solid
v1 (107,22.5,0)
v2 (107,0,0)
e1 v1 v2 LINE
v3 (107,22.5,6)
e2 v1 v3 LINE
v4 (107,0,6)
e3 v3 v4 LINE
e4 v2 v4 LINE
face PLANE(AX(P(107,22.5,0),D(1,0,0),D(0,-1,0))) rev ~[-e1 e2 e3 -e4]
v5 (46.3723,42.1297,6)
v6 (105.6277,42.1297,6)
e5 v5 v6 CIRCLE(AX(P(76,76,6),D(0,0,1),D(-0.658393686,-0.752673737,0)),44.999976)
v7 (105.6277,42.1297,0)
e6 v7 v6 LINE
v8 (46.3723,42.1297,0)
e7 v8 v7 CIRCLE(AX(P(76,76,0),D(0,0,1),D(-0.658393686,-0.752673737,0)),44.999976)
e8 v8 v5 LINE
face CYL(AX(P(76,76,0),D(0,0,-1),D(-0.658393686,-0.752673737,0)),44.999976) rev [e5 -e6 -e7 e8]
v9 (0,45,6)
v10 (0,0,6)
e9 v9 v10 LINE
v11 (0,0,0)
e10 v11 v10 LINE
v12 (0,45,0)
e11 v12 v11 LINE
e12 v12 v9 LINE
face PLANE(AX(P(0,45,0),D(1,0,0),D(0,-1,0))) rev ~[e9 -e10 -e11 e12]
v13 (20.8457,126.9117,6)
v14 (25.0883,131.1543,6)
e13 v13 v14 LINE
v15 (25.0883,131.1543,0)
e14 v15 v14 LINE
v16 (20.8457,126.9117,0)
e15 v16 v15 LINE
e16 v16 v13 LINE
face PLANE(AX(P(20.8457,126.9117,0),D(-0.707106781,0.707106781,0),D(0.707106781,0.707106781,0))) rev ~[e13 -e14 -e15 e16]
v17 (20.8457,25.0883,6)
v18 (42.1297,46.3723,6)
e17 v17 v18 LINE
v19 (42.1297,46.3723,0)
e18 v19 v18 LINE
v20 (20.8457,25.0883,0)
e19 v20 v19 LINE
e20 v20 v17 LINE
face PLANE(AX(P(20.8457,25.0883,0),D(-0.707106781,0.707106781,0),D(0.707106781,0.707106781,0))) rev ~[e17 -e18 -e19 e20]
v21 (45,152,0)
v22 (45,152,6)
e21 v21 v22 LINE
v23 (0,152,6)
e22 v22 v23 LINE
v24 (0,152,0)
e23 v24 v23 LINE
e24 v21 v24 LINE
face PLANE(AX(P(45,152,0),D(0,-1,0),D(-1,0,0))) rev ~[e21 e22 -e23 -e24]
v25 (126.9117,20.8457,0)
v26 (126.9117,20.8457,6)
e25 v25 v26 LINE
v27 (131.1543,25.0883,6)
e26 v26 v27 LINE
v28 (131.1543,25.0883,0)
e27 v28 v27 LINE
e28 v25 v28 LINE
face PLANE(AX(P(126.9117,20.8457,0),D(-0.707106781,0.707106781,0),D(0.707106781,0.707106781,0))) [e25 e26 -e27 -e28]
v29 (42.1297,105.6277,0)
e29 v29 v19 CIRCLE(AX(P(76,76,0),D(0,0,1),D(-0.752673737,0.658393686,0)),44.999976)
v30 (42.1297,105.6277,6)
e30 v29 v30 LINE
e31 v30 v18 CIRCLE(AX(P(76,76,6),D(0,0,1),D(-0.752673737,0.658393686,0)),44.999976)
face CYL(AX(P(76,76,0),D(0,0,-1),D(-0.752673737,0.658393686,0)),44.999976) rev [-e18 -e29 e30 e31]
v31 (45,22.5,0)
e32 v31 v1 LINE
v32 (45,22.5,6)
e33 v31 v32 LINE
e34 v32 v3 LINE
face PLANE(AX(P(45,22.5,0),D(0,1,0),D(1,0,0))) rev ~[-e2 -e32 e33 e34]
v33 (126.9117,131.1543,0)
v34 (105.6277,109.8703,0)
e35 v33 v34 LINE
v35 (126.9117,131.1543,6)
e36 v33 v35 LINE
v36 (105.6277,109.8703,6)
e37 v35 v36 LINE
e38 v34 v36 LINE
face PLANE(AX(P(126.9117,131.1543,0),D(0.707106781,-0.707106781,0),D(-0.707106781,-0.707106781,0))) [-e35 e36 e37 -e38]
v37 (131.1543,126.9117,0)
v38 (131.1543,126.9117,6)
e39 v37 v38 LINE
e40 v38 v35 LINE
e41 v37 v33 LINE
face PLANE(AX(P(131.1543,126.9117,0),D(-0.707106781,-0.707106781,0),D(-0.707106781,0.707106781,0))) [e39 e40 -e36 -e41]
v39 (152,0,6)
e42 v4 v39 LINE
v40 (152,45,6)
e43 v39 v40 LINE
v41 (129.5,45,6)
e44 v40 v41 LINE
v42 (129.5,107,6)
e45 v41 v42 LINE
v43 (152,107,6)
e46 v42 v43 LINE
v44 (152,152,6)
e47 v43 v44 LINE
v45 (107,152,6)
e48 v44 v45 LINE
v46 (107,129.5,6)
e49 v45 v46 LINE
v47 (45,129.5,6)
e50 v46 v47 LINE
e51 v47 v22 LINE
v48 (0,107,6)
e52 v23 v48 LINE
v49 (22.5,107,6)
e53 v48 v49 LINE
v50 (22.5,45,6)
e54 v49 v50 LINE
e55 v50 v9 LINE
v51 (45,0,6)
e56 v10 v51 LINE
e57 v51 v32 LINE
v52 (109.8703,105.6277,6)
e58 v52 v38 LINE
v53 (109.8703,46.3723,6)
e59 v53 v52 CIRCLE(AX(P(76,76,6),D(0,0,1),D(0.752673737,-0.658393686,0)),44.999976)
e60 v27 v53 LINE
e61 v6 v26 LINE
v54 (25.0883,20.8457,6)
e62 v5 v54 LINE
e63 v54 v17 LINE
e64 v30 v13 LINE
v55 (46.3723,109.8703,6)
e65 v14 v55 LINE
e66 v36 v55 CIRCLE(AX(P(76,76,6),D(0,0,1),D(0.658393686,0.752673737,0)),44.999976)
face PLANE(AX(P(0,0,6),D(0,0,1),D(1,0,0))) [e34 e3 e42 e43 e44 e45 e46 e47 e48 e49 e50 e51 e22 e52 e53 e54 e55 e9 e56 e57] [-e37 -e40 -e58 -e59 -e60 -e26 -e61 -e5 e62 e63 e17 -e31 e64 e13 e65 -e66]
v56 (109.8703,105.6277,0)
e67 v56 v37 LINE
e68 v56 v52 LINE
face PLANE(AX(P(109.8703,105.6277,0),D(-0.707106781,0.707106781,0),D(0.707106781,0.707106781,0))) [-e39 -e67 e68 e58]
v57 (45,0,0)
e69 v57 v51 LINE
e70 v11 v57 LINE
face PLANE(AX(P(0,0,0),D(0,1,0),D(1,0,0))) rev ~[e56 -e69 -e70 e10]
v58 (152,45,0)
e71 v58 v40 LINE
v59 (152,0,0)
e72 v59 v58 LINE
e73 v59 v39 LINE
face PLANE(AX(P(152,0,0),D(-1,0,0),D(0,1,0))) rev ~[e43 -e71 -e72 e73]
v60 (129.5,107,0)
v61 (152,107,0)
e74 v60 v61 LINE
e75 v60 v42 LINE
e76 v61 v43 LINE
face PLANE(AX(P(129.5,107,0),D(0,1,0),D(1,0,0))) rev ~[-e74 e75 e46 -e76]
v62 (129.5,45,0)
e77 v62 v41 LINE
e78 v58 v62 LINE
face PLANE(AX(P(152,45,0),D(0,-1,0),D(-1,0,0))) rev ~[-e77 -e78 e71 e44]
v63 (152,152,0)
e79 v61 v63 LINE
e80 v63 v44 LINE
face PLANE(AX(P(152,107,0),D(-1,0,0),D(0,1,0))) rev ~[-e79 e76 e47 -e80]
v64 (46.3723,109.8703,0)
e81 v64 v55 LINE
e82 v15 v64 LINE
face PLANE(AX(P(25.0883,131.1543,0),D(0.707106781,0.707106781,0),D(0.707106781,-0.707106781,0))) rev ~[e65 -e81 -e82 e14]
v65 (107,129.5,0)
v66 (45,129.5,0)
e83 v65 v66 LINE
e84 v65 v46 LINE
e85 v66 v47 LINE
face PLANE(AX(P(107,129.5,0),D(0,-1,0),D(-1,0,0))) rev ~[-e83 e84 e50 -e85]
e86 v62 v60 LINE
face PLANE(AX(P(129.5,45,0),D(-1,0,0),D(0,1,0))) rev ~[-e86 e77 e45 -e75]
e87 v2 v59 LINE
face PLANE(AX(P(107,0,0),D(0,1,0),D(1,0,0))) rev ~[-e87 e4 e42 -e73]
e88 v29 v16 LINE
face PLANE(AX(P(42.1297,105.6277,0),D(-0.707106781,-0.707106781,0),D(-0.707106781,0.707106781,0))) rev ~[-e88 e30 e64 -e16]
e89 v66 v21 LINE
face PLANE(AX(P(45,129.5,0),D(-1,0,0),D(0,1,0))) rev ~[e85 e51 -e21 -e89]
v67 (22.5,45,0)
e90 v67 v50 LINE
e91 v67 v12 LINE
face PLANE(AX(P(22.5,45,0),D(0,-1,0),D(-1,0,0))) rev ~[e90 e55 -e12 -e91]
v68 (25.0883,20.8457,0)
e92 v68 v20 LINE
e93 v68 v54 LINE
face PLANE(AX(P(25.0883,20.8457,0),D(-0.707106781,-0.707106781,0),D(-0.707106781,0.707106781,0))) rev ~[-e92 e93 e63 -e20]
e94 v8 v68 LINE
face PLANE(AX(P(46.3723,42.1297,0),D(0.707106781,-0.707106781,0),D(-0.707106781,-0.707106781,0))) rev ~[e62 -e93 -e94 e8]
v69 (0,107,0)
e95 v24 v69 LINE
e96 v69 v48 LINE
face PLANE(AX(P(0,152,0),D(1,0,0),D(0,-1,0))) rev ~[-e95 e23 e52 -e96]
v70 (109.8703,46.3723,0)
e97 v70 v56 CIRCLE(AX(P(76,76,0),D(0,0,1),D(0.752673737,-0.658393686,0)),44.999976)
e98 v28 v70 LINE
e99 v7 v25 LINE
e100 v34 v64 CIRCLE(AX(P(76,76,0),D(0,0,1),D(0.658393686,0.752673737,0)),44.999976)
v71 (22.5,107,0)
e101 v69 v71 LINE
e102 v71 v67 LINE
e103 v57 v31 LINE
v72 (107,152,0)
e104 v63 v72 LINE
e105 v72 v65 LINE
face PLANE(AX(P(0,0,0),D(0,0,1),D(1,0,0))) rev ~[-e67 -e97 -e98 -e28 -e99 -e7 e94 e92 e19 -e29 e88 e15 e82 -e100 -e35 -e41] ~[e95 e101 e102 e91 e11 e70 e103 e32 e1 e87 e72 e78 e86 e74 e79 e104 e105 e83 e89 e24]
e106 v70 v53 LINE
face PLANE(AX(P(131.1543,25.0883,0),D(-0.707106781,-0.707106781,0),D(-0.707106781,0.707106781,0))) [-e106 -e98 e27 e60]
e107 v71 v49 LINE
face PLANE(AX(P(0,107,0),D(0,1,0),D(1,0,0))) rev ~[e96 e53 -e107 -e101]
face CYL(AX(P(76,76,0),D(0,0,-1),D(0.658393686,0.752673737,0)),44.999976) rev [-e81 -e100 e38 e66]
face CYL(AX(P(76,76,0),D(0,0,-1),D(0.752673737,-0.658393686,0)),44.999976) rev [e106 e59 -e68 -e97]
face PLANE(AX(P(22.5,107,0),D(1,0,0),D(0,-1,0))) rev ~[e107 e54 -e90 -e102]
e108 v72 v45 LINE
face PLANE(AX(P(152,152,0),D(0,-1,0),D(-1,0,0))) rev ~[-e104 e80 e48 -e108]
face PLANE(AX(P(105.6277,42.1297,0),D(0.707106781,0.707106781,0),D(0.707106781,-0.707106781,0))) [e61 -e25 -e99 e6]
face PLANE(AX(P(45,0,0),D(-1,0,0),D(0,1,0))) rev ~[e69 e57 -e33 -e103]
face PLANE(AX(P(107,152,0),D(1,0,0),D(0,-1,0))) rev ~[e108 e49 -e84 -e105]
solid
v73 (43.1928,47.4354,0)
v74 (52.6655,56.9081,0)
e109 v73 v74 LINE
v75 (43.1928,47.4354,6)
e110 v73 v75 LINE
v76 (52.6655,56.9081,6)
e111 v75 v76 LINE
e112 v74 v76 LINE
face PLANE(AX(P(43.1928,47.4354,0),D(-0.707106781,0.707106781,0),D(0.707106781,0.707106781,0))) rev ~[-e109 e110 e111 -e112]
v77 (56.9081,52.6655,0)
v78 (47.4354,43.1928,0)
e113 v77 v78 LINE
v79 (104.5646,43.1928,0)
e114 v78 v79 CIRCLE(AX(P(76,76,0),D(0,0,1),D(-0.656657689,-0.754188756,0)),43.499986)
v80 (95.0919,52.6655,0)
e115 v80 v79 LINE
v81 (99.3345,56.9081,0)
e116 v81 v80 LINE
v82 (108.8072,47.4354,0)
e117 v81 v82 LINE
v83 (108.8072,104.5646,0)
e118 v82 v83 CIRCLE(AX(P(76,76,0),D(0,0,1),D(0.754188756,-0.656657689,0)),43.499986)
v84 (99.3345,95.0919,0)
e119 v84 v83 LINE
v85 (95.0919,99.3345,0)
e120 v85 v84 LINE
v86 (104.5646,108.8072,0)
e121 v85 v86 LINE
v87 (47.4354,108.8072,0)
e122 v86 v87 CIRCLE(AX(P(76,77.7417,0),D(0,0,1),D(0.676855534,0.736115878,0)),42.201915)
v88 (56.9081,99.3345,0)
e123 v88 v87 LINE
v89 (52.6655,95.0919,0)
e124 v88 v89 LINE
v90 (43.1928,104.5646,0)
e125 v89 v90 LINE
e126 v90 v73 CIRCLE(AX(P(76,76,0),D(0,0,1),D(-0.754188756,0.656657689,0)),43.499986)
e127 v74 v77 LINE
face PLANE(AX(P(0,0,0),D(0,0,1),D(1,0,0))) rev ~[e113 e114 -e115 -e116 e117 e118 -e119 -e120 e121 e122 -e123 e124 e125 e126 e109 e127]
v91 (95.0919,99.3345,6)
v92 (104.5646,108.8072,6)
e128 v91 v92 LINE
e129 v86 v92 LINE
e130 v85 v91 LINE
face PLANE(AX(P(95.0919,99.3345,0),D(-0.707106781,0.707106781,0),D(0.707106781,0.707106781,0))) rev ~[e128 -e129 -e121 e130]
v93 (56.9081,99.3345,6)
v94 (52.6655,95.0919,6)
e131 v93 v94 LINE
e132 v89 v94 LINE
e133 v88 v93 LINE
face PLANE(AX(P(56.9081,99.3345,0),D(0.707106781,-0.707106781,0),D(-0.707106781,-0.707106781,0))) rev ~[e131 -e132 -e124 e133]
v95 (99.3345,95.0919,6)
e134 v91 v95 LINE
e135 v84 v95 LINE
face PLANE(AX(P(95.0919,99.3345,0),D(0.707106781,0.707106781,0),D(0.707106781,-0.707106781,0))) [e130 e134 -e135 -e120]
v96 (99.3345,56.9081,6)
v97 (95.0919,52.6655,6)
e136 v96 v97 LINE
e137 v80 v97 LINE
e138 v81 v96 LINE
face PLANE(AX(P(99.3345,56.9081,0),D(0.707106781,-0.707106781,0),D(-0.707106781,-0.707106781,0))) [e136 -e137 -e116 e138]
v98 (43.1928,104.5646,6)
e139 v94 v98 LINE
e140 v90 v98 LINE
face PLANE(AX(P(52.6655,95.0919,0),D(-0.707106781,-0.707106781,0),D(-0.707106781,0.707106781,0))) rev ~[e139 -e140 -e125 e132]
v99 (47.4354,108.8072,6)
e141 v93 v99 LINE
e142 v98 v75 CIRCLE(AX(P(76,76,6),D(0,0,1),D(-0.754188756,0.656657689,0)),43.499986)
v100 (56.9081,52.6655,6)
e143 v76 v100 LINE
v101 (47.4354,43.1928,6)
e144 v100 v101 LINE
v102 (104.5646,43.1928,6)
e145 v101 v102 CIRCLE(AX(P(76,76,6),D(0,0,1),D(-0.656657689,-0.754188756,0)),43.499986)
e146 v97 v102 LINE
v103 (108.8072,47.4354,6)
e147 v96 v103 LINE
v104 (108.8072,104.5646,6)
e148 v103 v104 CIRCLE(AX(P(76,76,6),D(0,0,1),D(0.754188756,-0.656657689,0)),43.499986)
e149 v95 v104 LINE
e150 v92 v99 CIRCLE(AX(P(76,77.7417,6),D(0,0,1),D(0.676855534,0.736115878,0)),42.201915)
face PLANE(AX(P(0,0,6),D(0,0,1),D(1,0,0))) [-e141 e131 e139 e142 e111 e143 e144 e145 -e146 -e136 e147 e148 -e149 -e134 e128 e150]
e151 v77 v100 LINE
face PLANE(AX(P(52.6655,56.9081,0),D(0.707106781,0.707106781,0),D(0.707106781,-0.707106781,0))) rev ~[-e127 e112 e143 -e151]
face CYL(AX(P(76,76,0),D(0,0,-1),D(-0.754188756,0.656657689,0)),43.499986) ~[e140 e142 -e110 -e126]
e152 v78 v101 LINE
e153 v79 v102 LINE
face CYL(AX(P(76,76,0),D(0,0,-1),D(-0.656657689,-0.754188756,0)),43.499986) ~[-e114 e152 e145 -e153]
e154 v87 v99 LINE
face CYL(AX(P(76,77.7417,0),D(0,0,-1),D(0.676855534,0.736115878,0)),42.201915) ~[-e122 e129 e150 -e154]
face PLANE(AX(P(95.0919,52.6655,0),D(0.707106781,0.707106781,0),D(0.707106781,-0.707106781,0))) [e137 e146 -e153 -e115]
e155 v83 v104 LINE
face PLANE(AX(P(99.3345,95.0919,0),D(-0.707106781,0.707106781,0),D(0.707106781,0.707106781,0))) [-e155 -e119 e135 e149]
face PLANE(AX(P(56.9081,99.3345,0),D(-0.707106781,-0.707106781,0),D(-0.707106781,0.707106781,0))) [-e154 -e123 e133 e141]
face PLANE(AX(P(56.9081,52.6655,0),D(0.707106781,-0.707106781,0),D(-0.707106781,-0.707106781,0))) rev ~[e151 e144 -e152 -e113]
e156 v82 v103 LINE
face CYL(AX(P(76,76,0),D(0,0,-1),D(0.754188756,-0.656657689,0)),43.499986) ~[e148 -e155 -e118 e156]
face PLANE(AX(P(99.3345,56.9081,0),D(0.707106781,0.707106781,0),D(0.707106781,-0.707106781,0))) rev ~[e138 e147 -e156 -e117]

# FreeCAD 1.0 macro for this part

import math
import FreeCAD as App
import Part
import Sketcher
Q = App.Units.Quantity


def add_polygon(sketch, points):
    """Adds a closed chain of lines whose ends are joined by coincident constraints."""
    first, n = sketch.GeometryCount, len(points)
    for a, b in zip(points, points[1:] + points[:1]):
        sketch.addGeometry(Part.LineSegment(App.Vector(*a, 0), App.Vector(*b, 0)), False)
    for i in range(n):
        sketch.addConstraint(Sketcher.Constraint("Coincident", first + i, 2, first + (i + 1) % n, 1))

doc = App.newDocument("Part")
body = doc.addObject("PartDesign::Body", "Body")
body.AllowCompound = True

# Sketch on XY plane
sketch1 = doc.addObject("Sketcher::SketchObject", "Sketch")
body.addObject(sketch1)
sketch1.AttachmentSupport = (doc.XY_Plane, [""])
sketch1.MapMode = "FlatFace"
add_polygon(sketch1, [(0, 45), (0, 0), (45, 0), (45, 22.5), (107, 22.5), (107, 0), (152, 0), (152, 45), (129.5, 45), (129.5, 107), (152, 107), (152, 152), (107, 152), (107, 129.5), (45, 129.5), (45, 152), (0, 152), (0, 107), (22.5, 107), (22.5, 45)])  # lines 0-19
sketch1.addGeometry(Part.LineSegment(App.Vector(131.1543, 25.0883, 0), App.Vector(126.9117, 20.8457, 0)), False)  # 20
sketch1.addGeometry(Part.LineSegment(App.Vector(126.9117, 20.8457, 0), App.Vector(105.6277, 42.1297, 0)), False)  # 21
sketch1.addGeometry(Part.ArcOfCircle(Part.Circle(App.Vector(76, 76, 0), App.Vector(0, 0, 1), 44.999976), math.radians(-131.177481), math.radians(-48.822519)), False)  # 22
sketch1.addGeometry(Part.LineSegment(App.Vector(46.3723, 42.1297, 0), App.Vector(25.0883, 20.8457, 0)), False)  # 23
sketch1.addGeometry(Part.LineSegment(App.Vector(25.0883, 20.8457, 0), App.Vector(20.8457, 25.0883, 0)), False)  # 24
sketch1.addGeometry(Part.LineSegment(App.Vector(20.8457, 25.0883, 0), App.Vector(42.1297, 46.3723, 0)), False)  # 25
sketch1.addGeometry(Part.ArcOfCircle(Part.Circle(App.Vector(76, 76, 0), App.Vector(0, 0, 1), 44.999976), math.radians(138.822519), math.radians(221.177481)), False)  # 26
sketch1.addGeometry(Part.LineSegment(App.Vector(42.1297, 105.6277, 0), App.Vector(20.8457, 126.9117, 0)), False)  # 27
sketch1.addGeometry(Part.LineSegment(App.Vector(20.8457, 126.9117, 0), App.Vector(25.0883, 131.1543, 0)), False)  # 28
sketch1.addGeometry(Part.LineSegment(App.Vector(25.0883, 131.1543, 0), App.Vector(46.3723, 109.8703, 0)), False)  # 29
sketch1.addGeometry(Part.ArcOfCircle(Part.Circle(App.Vector(76, 76, 0), App.Vector(0, 0, 1), 44.999976), math.radians(48.822519), math.radians(131.177481)), False)  # 30
sketch1.addGeometry(Part.LineSegment(App.Vector(105.6277, 109.8703, 0), App.Vector(126.9117, 131.1543, 0)), False)  # 31
sketch1.addGeometry(Part.LineSegment(App.Vector(126.9117, 131.1543, 0), App.Vector(131.1543, 126.9117, 0)), False)  # 32
sketch1.addGeometry(Part.LineSegment(App.Vector(131.1543, 126.9117, 0), App.Vector(109.8703, 105.6277, 0)), False)  # 33
sketch1.addGeometry(Part.ArcOfCircle(Part.Circle(App.Vector(76, 76, 0), App.Vector(0, 0, 1), 44.999976), math.radians(-41.177481), math.radians(41.177481)), False)  # 34
sketch1.addGeometry(Part.LineSegment(App.Vector(109.8703, 46.3723, 0), App.Vector(131.1543, 25.0883, 0)), False)  # 35
sketch1.addGeometry(Part.ArcOfCircle(Part.Circle(App.Vector(76, 76, 0), App.Vector(0, 0, 1), 43.499986), math.radians(138.954535), math.radians(221.045465)), False)  # 36
sketch1.addGeometry(Part.LineSegment(App.Vector(43.1928, 47.4354, 0), App.Vector(52.6655, 56.9081, 0)), False)  # 37
sketch1.addGeometry(Part.LineSegment(App.Vector(52.6655, 56.9081, 0), App.Vector(56.9081, 52.6655, 0)), False)  # 38
sketch1.addGeometry(Part.LineSegment(App.Vector(56.9081, 52.6655, 0), App.Vector(47.4354, 43.1928, 0)), False)  # 39
sketch1.addGeometry(Part.ArcOfCircle(Part.Circle(App.Vector(76, 76, 0), App.Vector(0, 0, 1), 43.499986), math.radians(-131.045465), math.radians(-48.954535)), False)  # 40
sketch1.addGeometry(Part.LineSegment(App.Vector(104.5646, 43.1928, 0), App.Vector(95.0919, 52.6655, 0)), False)  # 41
sketch1.addGeometry(Part.LineSegment(App.Vector(95.0919, 52.6655, 0), App.Vector(99.3345, 56.9081, 0)), False)  # 42
sketch1.addGeometry(Part.LineSegment(App.Vector(99.3345, 56.9081, 0), App.Vector(108.8072, 47.4354, 0)), False)  # 43
sketch1.addGeometry(Part.ArcOfCircle(Part.Circle(App.Vector(76, 76, 0), App.Vector(0, 0, 1), 43.499986), math.radians(-41.045465), math.radians(41.045465)), False)  # 44
sketch1.addGeometry(Part.LineSegment(App.Vector(108.8072, 104.5646, 0), App.Vector(99.3345, 95.0919, 0)), False)  # 45
sketch1.addGeometry(Part.LineSegment(App.Vector(99.3345, 95.0919, 0), App.Vector(95.0919, 99.3345, 0)), False)  # 46
sketch1.addGeometry(Part.LineSegment(App.Vector(95.0919, 99.3345, 0), App.Vector(104.5646, 108.8072, 0)), False)  # 47
sketch1.addGeometry(Part.ArcOfCircle(Part.Circle(App.Vector(76, 77.7417, 0), App.Vector(0, 0, 1), 42.201915), math.radians(47.401591), math.radians(132.598409)), False)  # 48
sketch1.addGeometry(Part.LineSegment(App.Vector(47.4354, 108.8072, 0), App.Vector(56.9081, 99.3345, 0)), False)  # 49
sketch1.addGeometry(Part.LineSegment(App.Vector(56.9081, 99.3345, 0), App.Vector(52.6655, 95.0919, 0)), False)  # 50
sketch1.addGeometry(Part.LineSegment(App.Vector(52.6655, 95.0919, 0), App.Vector(43.1928, 104.5646, 0)), False)  # 51
sketch1.addConstraint([
    Sketcher.Constraint("Coincident", 20, 2, 21, 1),
    Sketcher.Constraint("Coincident", 21, 2, 22, 2),
    Sketcher.Constraint("Coincident", 22, 1, 23, 1),
    Sketcher.Constraint("Coincident", 23, 2, 24, 1),
    Sketcher.Constraint("Coincident", 24, 2, 25, 1),
    Sketcher.Constraint("Coincident", 25, 2, 26, 2),
    Sketcher.Constraint("Coincident", 26, 1, 27, 1),
    Sketcher.Constraint("Coincident", 27, 2, 28, 1),
    Sketcher.Constraint("Coincident", 28, 2, 29, 1),
    Sketcher.Constraint("Coincident", 29, 2, 30, 2),
    Sketcher.Constraint("Coincident", 30, 1, 31, 1),
    Sketcher.Constraint("Coincident", 31, 2, 32, 1),
    Sketcher.Constraint("Coincident", 32, 2, 33, 1),
    Sketcher.Constraint("Coincident", 33, 2, 34, 2),
    Sketcher.Constraint("Coincident", 34, 1, 35, 1),
    Sketcher.Constraint("Coincident", 35, 2, 20, 1),
    Sketcher.Constraint("Coincident", 36, 2, 37, 1),
    Sketcher.Constraint("Coincident", 37, 2, 38, 1),
    Sketcher.Constraint("Coincident", 38, 2, 39, 1),
    Sketcher.Constraint("Coincident", 39, 2, 40, 1),
    Sketcher.Constraint("Coincident", 40, 2, 41, 1),
    Sketcher.Constraint("Coincident", 41, 2, 42, 1),
    Sketcher.Constraint("Coincident", 42, 2, 43, 1),
    Sketcher.Constraint("Coincident", 43, 2, 44, 1),
    Sketcher.Constraint("Coincident", 44, 2, 45, 1),
    Sketcher.Constraint("Coincident", 45, 2, 46, 1),
    Sketcher.Constraint("Coincident", 46, 2, 47, 1),
    Sketcher.Constraint("Coincident", 47, 2, 48, 1),
    Sketcher.Constraint("Coincident", 48, 2, 49, 1),
    Sketcher.Constraint("Coincident", 49, 2, 50, 1),
    Sketcher.Constraint("Coincident", 50, 2, 51, 1),
    Sketcher.Constraint("Coincident", 51, 2, 36, 1),
    Sketcher.Constraint("Vertical", 0),
    Sketcher.Constraint("Horizontal", 1),
    Sketcher.Constraint("Vertical", 2),
    Sketcher.Constraint("Horizontal", 3),
    Sketcher.Constraint("Vertical", 4),
    Sketcher.Constraint("Horizontal", 5),
    Sketcher.Constraint("Vertical", 6),
    Sketcher.Constraint("Horizontal", 7),
    Sketcher.Constraint("Vertical", 8),
    Sketcher.Constraint("Horizontal", 9),
    Sketcher.Constraint("Vertical", 10),
    Sketcher.Constraint("Horizontal", 11),
    Sketcher.Constraint("Vertical", 12),
    Sketcher.Constraint("Horizontal", 13),
    Sketcher.Constraint("Vertical", 14),
    Sketcher.Constraint("Horizontal", 15),
    Sketcher.Constraint("Vertical", 16),
    Sketcher.Constraint("Horizontal", 17),
    Sketcher.Constraint("Vertical", 18),
    Sketcher.Constraint("Horizontal", 19),
    Sketcher.Constraint("Coincident", 0, 2, -1, 1),
    Sketcher.Constraint("Coincident", 26, 3, 22, 3),
    Sketcher.Constraint("Coincident", 30, 3, 22, 3),
    Sketcher.Constraint("Coincident", 34, 3, 22, 3),
    Sketcher.Constraint("Coincident", 36, 3, 22, 3),
    Sketcher.Constraint("Coincident", 40, 3, 22, 3),
    Sketcher.Constraint("Coincident", 44, 3, 22, 3),
    Sketcher.Constraint("Equal", 22, 26),
    Sketcher.Constraint("Equal", 26, 30),
    Sketcher.Constraint("Equal", 30, 34),
    Sketcher.Constraint("Equal", 36, 40),
    Sketcher.Constraint("Equal", 40, 44),
    Sketcher.Constraint("PointOnObject", 4, 2, -1),
    Sketcher.Constraint("PointOnObject", 15, 2, -2),
    Sketcher.Constraint("Perpendicular", 20, 21),
    Sketcher.Constraint("Perpendicular", 21, 23),
    Sketcher.Constraint("Perpendicular", 23, 24),
    Sketcher.Constraint("Perpendicular", 24, 25),
    Sketcher.Constraint("Perpendicular", 25, 27),
    Sketcher.Constraint("Perpendicular", 27, 28),
    Sketcher.Constraint("Perpendicular", 28, 29),
    Sketcher.Constraint("Perpendicular", 29, 31),
    Sketcher.Constraint("Perpendicular", 31, 32),
    Sketcher.Constraint("Perpendicular", 32, 33),
    Sketcher.Constraint("Perpendicular", 33, 35),
    Sketcher.Constraint("Perpendicular", 35, 37),
    Sketcher.Constraint("Perpendicular", 37, 38),
    Sketcher.Constraint("Perpendicular", 38, 39),
    Sketcher.Constraint("Perpendicular", 39, 41),
    Sketcher.Constraint("Perpendicular", 41, 42),
    Sketcher.Constraint("Perpendicular", 42, 43),
    Sketcher.Constraint("Perpendicular", 43, 45),
    Sketcher.Constraint("Perpendicular", 45, 46),
    Sketcher.Constraint("Perpendicular", 46, 47),
    Sketcher.Constraint("Perpendicular", 47, 49),
    Sketcher.Constraint("Perpendicular", 49, 50),
    Sketcher.Constraint("Perpendicular", 50, 51),
    Sketcher.Constraint("Horizontal", 11, 2, 14, 2),
    Sketcher.Constraint("Horizontal", 9, 2, 16, 2),
    Sketcher.Constraint("Horizontal", 7, 2, 18, 2),
    Sketcher.Constraint("Horizontal", 21, 2, 22, 1),
    Sketcher.Constraint("Horizontal", 20, 2, 23, 2),
    Sketcher.Constraint("Horizontal", 29, 2, 30, 1),
    Sketcher.Constraint("Horizontal", 28, 2, 31, 2),
    Sketcher.Constraint("Horizontal", 27, 2, 32, 2),
    Sketcher.Constraint("Horizontal", 25, 2, 34, 1),
    Sketcher.Constraint("Horizontal", 24, 2, 35, 2),
    Sketcher.Constraint("Horizontal", 39, 2, 40, 2),
    Sketcher.Constraint("Horizontal", 38, 2, 41, 2),
    Sketcher.Constraint("Horizontal", 37, 2, 42, 2),
    Sketcher.Constraint("Horizontal", 47, 2, 48, 2),
    Sketcher.Constraint("Horizontal", 46, 2, 49, 2),
    Sketcher.Constraint("Horizontal", 45, 2, 50, 2),
    Sketcher.Constraint("Horizontal", 44, 2, 51, 2),
    Sketcher.Constraint("Vertical", 6, 2, 9, 2),
    Sketcher.Constraint("Vertical", 4, 2, 11, 2),
    Sketcher.Constraint("Vertical", 2, 2, 13, 2),
    Sketcher.Constraint("Vertical", 25, 2, 26, 1),
    Sketcher.Constraint("Vertical", 24, 2, 27, 2),
    Sketcher.Constraint("Vertical", 23, 2, 28, 2),
    Sketcher.Constraint("Vertical", 43, 2, 44, 2),
    Sketcher.Constraint("Vertical", 42, 2, 45, 2),
    Sketcher.Constraint("Vertical", 41, 2, 46, 2),
    Sketcher.Constraint("Vertical", 40, 2, 47, 2),
    Sketcher.Constraint("Equal", 1, 5),
    Sketcher.Constraint("Equal", 9, 17),
    Sketcher.Constraint("Equal", 15, 0),
    Sketcher.Constraint("Equal", 19, 2),
    Sketcher.Constraint("Equal", 13, 8),
    Sketcher.Constraint("Equal", 6, 10),
    Sketcher.Constraint("Equal", 4, 12),
    Sketcher.Constraint("Equal", 23, 25),
    Sketcher.Constraint("Equal", 32, 38),
    Sketcher.Constraint("Equal", 37, 39),
    Sketcher.Constraint("Radius", 22, Q("45 mm")),
    Sketcher.Constraint("Radius", 36, Q("43.5 mm")),
    Sketcher.Constraint("DistanceX", 1, 1, 1, 2, Q("45 mm")),
    Sketcher.Constraint("Distance", 20, Q("6 mm")),
    Sketcher.Constraint("DistanceX", -1, 1, 5, 2, Q("152 mm")),
    Sketcher.Constraint("DistanceX", 7, 2, 7, 1, Q("22.5 mm")),
    Sketcher.Constraint("DistanceX", -1, 1, 22, 3, Q("76 mm")),
    Sketcher.Constraint("DistanceY", -1, 1, 22, 3, Q("76 mm")),
    Sketcher.Constraint("Radius", 48, Q("42.202 mm")),
    Sketcher.Constraint("DistanceY", 36, 2, 38, 2, Q("5.23 mm")),
    Sketcher.Constraint("DistanceX", 21, 2, 20, 2, Q("21.284 mm")),
])
pad1 = doc.addObject("PartDesign::Pad", "Pad")
body.addObject(pad1)
pad1.Profile = sketch1
pad1.Length = 6

doc.recompute()
